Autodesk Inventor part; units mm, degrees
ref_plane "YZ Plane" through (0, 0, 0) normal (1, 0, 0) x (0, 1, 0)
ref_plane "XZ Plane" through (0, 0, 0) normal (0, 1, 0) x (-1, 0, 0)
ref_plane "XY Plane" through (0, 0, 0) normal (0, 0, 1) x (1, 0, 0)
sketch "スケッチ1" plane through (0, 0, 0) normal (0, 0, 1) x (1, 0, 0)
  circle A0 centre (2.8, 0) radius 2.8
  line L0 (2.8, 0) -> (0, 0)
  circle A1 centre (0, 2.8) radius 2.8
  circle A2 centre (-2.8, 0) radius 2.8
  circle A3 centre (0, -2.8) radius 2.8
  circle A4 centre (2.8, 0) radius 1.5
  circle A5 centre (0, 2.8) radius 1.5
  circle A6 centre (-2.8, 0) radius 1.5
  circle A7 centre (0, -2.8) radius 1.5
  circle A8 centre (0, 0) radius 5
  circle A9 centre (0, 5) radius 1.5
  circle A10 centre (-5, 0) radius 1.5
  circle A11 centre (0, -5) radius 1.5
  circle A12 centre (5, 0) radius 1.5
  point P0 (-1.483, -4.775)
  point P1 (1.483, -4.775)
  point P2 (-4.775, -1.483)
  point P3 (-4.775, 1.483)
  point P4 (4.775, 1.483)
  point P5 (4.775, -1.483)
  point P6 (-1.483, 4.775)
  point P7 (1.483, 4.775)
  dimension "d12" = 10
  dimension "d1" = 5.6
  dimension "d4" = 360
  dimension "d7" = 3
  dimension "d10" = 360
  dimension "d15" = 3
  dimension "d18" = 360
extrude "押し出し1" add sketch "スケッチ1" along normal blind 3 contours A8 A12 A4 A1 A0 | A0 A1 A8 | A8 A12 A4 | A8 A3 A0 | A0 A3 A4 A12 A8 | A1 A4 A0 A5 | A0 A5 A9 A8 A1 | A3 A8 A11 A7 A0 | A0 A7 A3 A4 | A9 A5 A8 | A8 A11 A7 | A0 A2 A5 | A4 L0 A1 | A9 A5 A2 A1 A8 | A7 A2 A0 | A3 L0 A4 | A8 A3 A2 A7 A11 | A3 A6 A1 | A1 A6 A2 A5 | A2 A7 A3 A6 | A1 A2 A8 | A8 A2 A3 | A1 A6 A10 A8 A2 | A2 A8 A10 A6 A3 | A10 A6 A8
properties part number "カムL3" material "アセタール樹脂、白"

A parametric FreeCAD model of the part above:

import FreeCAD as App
import Part
import Sketcher
Q = App.Units.Quantity

doc = App.newDocument("Part")
body = doc.addObject("PartDesign::Body", "Body")

sketch1 = body.newObject("Sketcher::SketchObject", "Sketch")
sketch1.AttachmentSupport = (doc.getObject("XY_Plane"), [""])
sketch1.MapMode = "FlatFace"
sketch1.addGeometry([
    Part.Circle(App.Vector(0, 0, 0), App.Vector(0, 0, 1), 5),
    Part.Circle(App.Vector(2.8, 0, 0), App.Vector(0, 0, 1), 1.5),
    Part.Circle(App.Vector(0, 2.8, 0), App.Vector(0, 0, 1), 1.5),
    Part.Circle(App.Vector(0, -2.8, 0), App.Vector(0, 0, 1), 1.5),
    Part.Circle(App.Vector(-2.8, 0, 0), App.Vector(0, 0, 1), 1.5),
], False)
sketch1.addConstraint([
    Sketcher.Constraint("Coincident", 0, 3, -1, 1),
    Sketcher.Constraint("Equal", 1, 2),
    Sketcher.Constraint("Equal", 2, 3),
    Sketcher.Constraint("Equal", 3, 4),
    Sketcher.Constraint("Symmetric", 2, 3, 3, 3, -1, 1),
    Sketcher.Constraint("Symmetric", 1, 3, 4, 3, -1, 1),
    Sketcher.Constraint("PointOnObject", 1, 3, -1),
    Sketcher.Constraint("PointOnObject", 2, 3, -2),
    Sketcher.Constraint("Diameter", 0, Q("10 mm")),
    Sketcher.Constraint("Diameter", 1, Q("3 mm")),
    Sketcher.Constraint("DistanceY", 3, 3, 2, 3, Q("5.6 mm")),
    Sketcher.Constraint("DistanceX", 4, 3, 1, 3, Q("5.6 mm")),
])
pad1 = body.newObject("PartDesign::Pad", "Pad")
pad1.Profile = sketch1
pad1.Length = 3

doc.recompute()
